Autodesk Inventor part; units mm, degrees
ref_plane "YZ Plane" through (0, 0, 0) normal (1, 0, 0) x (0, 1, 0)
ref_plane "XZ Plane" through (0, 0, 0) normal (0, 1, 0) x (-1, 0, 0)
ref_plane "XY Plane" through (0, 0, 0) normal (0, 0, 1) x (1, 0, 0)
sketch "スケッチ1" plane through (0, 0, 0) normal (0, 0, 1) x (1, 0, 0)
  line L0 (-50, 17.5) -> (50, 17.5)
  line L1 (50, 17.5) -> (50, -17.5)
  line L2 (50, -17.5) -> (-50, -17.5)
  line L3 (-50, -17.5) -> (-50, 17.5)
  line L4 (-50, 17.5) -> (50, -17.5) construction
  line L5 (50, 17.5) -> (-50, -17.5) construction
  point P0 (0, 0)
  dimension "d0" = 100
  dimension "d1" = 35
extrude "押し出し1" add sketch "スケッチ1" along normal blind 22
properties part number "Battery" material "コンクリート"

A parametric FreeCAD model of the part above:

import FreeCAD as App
import Part
import Sketcher

V = App.Vector
Q = App.Units.Quantity

doc = App.newDocument("Part")
body = doc.addObject("PartDesign::Body", "Body")

sketch1 = body.newObject("Sketcher::SketchObject", "Sketch")
sketch1.AttachmentSupport = (doc.getObject("XY_Plane"), [""])
sketch1.MapMode = "FlatFace"
sketch1.addGeometry([
    Part.LineSegment(V(50, 18, 0), V(-50, 18, 0)),
    Part.LineSegment(V(-50, 18, 0), V(-50, -18, 0)),
    Part.LineSegment(V(-50, -18, 0), V(50, -18, 0)),
    Part.LineSegment(V(50, -18, 0), V(50, 18, 0)),
], False)
sketch1.addConstraint([
    Sketcher.Constraint("Coincident", 0, 2, 1, 1),
    Sketcher.Constraint("Coincident", 1, 2, 2, 1),
    Sketcher.Constraint("Coincident", 2, 2, 3, 1),
    Sketcher.Constraint("Coincident", 3, 2, 0, 1),
    Sketcher.Constraint("Horizontal", 0),
    Sketcher.Constraint("Vertical", 1),
    Sketcher.Constraint("Horizontal", 2),
    Sketcher.Constraint("Vertical", 3),
    Sketcher.Constraint("Symmetric", 0, 2, 2, 2, -1, 1),
    Sketcher.Constraint("DistanceX", 0, 2, 0, 1, Q("100 mm")),
    Sketcher.Constraint("DistanceY", 1, 2, 1, 1, Q("35 mm")),
])
pad1 = body.newObject("PartDesign::Pad", "Pad")
pad1.Profile = sketch1
pad1.Length = 22

doc.recompute()
